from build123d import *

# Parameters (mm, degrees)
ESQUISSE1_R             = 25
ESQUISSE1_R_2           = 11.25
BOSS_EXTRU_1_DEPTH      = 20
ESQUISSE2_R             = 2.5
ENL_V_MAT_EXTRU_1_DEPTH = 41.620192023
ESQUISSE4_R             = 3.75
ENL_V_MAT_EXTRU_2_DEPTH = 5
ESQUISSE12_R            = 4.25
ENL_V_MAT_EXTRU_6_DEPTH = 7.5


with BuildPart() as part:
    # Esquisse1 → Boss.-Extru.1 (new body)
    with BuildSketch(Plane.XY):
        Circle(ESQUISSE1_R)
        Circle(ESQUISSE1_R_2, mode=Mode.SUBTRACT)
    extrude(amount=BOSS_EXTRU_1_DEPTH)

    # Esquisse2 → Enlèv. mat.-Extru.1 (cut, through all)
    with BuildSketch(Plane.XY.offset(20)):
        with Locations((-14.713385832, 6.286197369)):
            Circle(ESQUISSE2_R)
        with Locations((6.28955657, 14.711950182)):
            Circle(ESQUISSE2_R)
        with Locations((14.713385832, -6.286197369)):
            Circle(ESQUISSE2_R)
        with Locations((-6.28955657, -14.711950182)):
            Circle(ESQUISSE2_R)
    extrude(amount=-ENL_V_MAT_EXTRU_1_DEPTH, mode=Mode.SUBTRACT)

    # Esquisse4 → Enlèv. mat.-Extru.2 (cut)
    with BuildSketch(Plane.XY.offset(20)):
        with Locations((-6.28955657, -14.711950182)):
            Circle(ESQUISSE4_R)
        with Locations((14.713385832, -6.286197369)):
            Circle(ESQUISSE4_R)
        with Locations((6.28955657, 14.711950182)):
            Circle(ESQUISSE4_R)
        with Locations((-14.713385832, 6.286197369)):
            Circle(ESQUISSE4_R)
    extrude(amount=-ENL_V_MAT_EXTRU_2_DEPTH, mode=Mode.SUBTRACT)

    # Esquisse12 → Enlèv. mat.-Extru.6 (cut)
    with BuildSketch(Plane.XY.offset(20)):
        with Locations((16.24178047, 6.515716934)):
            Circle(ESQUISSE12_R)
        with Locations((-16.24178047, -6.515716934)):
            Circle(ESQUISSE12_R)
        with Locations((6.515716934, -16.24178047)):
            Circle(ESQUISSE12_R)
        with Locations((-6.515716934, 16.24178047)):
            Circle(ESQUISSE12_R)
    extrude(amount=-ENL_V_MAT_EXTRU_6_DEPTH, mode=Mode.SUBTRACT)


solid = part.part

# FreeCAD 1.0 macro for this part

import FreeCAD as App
import Part
import Sketcher
from FreeCAD import Vector

doc = App.newDocument("Part")
params = doc.addObject("Spreadsheet::Sheet", "Params")
for row, (alias, value) in enumerate([
    ("sketch1_diameter", "50 mm"),
    ("sketch1_diameter2", "22.5 mm"),
    ("pad1_length", "20 mm"),
    ("sketch2_diameter", "5 mm"),
    ("sketch3_diameter", "7.5 mm"),
    ("pocket2_length", "5 mm"),
    ("sketch4_diameter", "8.5 mm"),
    ("pocket3_length", "7.5 mm"),
], start=1):
    params.set(f"A{row}", alias)
    params.set(f"B{row}", "=" + value)
    params.setAlias(f"B{row}", alias)

body = doc.addObject("PartDesign::Body", "Body")

# Sketch on XY plane
sketch1 = doc.addObject("Sketcher::SketchObject", "Sketch")
body.addObject(sketch1)
sketch1.AttachmentSupport = (doc.XY_Plane, [""])
sketch1.MapMode = "FlatFace"
sketch1.addGeometry(Part.Circle(Vector(0, 0, 0), Vector(0, 0, 1), 25), False)
sketch1.addGeometry(Part.Circle(Vector(0, 0, 0), Vector(0, 0, 1), 11.25), False)
sketch1.addConstraint(Sketcher.Constraint("Coincident", 0, 3, -1, 1))
sketch1.addConstraint(Sketcher.Constraint("Coincident", 1, 3, -1, 1))
sketch1.addConstraint(Sketcher.Constraint("Diameter", 0, 50.0))
sketch1.addConstraint(Sketcher.Constraint("Diameter", 1, 22.5))
sketch1.setExpression("Constraints[2]", "Params.sketch1_diameter")
sketch1.setExpression("Constraints[3]", "Params.sketch1_diameter2")
pad1 = doc.addObject("PartDesign::Pad", "Pad")
body.addObject(pad1)
pad1.Profile = sketch1
pad1.setExpression("Length", "Params.pad1_length")

# Sketch on XY plane
sketch2 = doc.addObject("Sketcher::SketchObject", "Sketch001")
body.addObject(sketch2)
sketch2.AttachmentSupport = (doc.XY_Plane, [""])
sketch2.MapMode = "FlatFace"
sketch2.AttachmentOffset = App.Placement(Vector(0, 0, 20), App.Rotation())
sketch2.addGeometry(Part.Circle(Vector(-14.713386, 6.286197, 0), Vector(0, 0, 1), 2.5), False)
sketch2.addGeometry(Part.Circle(Vector(6.289557, 14.71195, 0), Vector(0, 0, 1), 2.5), False)
sketch2.addGeometry(Part.Circle(Vector(14.713386, -6.286197, 0), Vector(0, 0, 1), 2.5), False)
sketch2.addGeometry(Part.Circle(Vector(-6.289557, -14.71195, 0), Vector(0, 0, 1), 2.5), False)
sketch2.addConstraint(Sketcher.Constraint("Equal", 0, 1))
sketch2.addConstraint(Sketcher.Constraint("Equal", 1, 2))
sketch2.addConstraint(Sketcher.Constraint("Equal", 2, 3))
sketch2.addConstraint(Sketcher.Constraint("Symmetric", 0, 3, 2, 3, -1, 1))
sketch2.addConstraint(Sketcher.Constraint("Symmetric", 1, 3, 3, 3, -1, 1))
sketch2.addConstraint(Sketcher.Constraint("Diameter", 0, 5.0))
sketch2.addConstraint(Sketcher.Constraint("DistanceY", 3, 3, 1, 3, 29.4239))
sketch2.addConstraint(Sketcher.Constraint("DistanceX", 1, 3, 2, 3, 8.423829))
sketch2.addConstraint(Sketcher.Constraint("DistanceX", 0, 3, 2, 3, 29.426772))
sketch2.addConstraint(Sketcher.Constraint("DistanceY", -1, 1, 0, 3, 6.286197))
sketch2.setExpression("Constraints[5]", "Params.sketch2_diameter")
pocket1 = doc.addObject("PartDesign::Pocket", "Pocket")
body.addObject(pocket1)
pocket1.Profile = sketch2
pocket1.Type = "ThroughAll"

# Sketch on XY plane
sketch3 = doc.addObject("Sketcher::SketchObject", "Sketch002")
body.addObject(sketch3)
sketch3.AttachmentSupport = (doc.XY_Plane, [""])
sketch3.MapMode = "FlatFace"
sketch3.AttachmentOffset = App.Placement(Vector(0, 0, 20), App.Rotation())
sketch3.addGeometry(Part.Circle(Vector(-6.289557, -14.71195, 0), Vector(0, 0, 1), 3.75), False)
sketch3.addGeometry(Part.Circle(Vector(14.713386, -6.286197, 0), Vector(0, 0, 1), 3.75), False)
sketch3.addGeometry(Part.Circle(Vector(6.289557, 14.71195, 0), Vector(0, 0, 1), 3.75), False)
sketch3.addGeometry(Part.Circle(Vector(-14.713386, 6.286197, 0), Vector(0, 0, 1), 3.75), False)
sketch3.addConstraint(Sketcher.Constraint("Equal", 0, 1))
sketch3.addConstraint(Sketcher.Constraint("Equal", 1, 2))
sketch3.addConstraint(Sketcher.Constraint("Equal", 2, 3))
sketch3.addConstraint(Sketcher.Constraint("Symmetric", 0, 3, 2, 3, -1, 1))
sketch3.addConstraint(Sketcher.Constraint("Symmetric", 1, 3, 3, 3, -1, 1))
sketch3.addConstraint(Sketcher.Constraint("Diameter", 0, 7.5))
sketch3.addConstraint(Sketcher.Constraint("DistanceY", 0, 3, 2, 3, 29.4239))
sketch3.addConstraint(Sketcher.Constraint("DistanceX", 2, 3, 1, 3, 8.423829))
sketch3.addConstraint(Sketcher.Constraint("DistanceX", 3, 3, 1, 3, 29.426772))
sketch3.addConstraint(Sketcher.Constraint("DistanceY", 1, 3, -1, 1, 6.286197))
sketch3.setExpression("Constraints[5]", "Params.sketch3_diameter")
pocket2 = doc.addObject("PartDesign::Pocket", "Pocket001")
body.addObject(pocket2)
pocket2.Profile = sketch3
pocket2.setExpression("Length", "Params.pocket2_length")

# Sketch on XY plane
sketch4 = doc.addObject("Sketcher::SketchObject", "Sketch003")
body.addObject(sketch4)
sketch4.AttachmentSupport = (doc.XY_Plane, [""])
sketch4.MapMode = "FlatFace"
sketch4.AttachmentOffset = App.Placement(Vector(0, 0, 20), App.Rotation())
sketch4.addGeometry(Part.Circle(Vector(16.24178, 6.515717, 0), Vector(0, 0, 1), 4.25), False)
sketch4.addGeometry(Part.Circle(Vector(-16.24178, -6.515717, 0), Vector(0, 0, 1), 4.25), False)
sketch4.addGeometry(Part.Circle(Vector(6.515717, -16.24178, 0), Vector(0, 0, 1), 4.25), False)
sketch4.addGeometry(Part.Circle(Vector(-6.515717, 16.24178, 0), Vector(0, 0, 1), 4.25), False)
sketch4.addConstraint(Sketcher.Constraint("Equal", 0, 1))
sketch4.addConstraint(Sketcher.Constraint("Equal", 1, 2))
sketch4.addConstraint(Sketcher.Constraint("Equal", 2, 3))
sketch4.addConstraint(Sketcher.Constraint("Symmetric", 0, 3, 1, 3, -1, 1))
sketch4.addConstraint(Sketcher.Constraint("Symmetric", 2, 3, 3, 3, -1, 1))
sketch4.addConstraint(Sketcher.Constraint("Diameter", 0, 8.5))
sketch4.addConstraint(Sketcher.Constraint("DistanceX", -1, 1, 0, 3, 16.24178))
sketch4.addConstraint(Sketcher.Constraint("DistanceY", 2, 3, -1, 1, 16.24178))
sketch4.addConstraint(Sketcher.Constraint("DistanceY", -1, 1, 0, 3, 6.515717))
sketch4.addConstraint(Sketcher.Constraint("DistanceX", -1, 1, 2, 3, 6.515717))
sketch4.setExpression("Constraints[5]", "Params.sketch4_diameter")
pocket3 = doc.addObject("PartDesign::Pocket", "Pocket002")
body.addObject(pocket3)
pocket3.Profile = sketch4
pocket3.setExpression("Length", "Params.pocket3_length")

doc.recompute()
